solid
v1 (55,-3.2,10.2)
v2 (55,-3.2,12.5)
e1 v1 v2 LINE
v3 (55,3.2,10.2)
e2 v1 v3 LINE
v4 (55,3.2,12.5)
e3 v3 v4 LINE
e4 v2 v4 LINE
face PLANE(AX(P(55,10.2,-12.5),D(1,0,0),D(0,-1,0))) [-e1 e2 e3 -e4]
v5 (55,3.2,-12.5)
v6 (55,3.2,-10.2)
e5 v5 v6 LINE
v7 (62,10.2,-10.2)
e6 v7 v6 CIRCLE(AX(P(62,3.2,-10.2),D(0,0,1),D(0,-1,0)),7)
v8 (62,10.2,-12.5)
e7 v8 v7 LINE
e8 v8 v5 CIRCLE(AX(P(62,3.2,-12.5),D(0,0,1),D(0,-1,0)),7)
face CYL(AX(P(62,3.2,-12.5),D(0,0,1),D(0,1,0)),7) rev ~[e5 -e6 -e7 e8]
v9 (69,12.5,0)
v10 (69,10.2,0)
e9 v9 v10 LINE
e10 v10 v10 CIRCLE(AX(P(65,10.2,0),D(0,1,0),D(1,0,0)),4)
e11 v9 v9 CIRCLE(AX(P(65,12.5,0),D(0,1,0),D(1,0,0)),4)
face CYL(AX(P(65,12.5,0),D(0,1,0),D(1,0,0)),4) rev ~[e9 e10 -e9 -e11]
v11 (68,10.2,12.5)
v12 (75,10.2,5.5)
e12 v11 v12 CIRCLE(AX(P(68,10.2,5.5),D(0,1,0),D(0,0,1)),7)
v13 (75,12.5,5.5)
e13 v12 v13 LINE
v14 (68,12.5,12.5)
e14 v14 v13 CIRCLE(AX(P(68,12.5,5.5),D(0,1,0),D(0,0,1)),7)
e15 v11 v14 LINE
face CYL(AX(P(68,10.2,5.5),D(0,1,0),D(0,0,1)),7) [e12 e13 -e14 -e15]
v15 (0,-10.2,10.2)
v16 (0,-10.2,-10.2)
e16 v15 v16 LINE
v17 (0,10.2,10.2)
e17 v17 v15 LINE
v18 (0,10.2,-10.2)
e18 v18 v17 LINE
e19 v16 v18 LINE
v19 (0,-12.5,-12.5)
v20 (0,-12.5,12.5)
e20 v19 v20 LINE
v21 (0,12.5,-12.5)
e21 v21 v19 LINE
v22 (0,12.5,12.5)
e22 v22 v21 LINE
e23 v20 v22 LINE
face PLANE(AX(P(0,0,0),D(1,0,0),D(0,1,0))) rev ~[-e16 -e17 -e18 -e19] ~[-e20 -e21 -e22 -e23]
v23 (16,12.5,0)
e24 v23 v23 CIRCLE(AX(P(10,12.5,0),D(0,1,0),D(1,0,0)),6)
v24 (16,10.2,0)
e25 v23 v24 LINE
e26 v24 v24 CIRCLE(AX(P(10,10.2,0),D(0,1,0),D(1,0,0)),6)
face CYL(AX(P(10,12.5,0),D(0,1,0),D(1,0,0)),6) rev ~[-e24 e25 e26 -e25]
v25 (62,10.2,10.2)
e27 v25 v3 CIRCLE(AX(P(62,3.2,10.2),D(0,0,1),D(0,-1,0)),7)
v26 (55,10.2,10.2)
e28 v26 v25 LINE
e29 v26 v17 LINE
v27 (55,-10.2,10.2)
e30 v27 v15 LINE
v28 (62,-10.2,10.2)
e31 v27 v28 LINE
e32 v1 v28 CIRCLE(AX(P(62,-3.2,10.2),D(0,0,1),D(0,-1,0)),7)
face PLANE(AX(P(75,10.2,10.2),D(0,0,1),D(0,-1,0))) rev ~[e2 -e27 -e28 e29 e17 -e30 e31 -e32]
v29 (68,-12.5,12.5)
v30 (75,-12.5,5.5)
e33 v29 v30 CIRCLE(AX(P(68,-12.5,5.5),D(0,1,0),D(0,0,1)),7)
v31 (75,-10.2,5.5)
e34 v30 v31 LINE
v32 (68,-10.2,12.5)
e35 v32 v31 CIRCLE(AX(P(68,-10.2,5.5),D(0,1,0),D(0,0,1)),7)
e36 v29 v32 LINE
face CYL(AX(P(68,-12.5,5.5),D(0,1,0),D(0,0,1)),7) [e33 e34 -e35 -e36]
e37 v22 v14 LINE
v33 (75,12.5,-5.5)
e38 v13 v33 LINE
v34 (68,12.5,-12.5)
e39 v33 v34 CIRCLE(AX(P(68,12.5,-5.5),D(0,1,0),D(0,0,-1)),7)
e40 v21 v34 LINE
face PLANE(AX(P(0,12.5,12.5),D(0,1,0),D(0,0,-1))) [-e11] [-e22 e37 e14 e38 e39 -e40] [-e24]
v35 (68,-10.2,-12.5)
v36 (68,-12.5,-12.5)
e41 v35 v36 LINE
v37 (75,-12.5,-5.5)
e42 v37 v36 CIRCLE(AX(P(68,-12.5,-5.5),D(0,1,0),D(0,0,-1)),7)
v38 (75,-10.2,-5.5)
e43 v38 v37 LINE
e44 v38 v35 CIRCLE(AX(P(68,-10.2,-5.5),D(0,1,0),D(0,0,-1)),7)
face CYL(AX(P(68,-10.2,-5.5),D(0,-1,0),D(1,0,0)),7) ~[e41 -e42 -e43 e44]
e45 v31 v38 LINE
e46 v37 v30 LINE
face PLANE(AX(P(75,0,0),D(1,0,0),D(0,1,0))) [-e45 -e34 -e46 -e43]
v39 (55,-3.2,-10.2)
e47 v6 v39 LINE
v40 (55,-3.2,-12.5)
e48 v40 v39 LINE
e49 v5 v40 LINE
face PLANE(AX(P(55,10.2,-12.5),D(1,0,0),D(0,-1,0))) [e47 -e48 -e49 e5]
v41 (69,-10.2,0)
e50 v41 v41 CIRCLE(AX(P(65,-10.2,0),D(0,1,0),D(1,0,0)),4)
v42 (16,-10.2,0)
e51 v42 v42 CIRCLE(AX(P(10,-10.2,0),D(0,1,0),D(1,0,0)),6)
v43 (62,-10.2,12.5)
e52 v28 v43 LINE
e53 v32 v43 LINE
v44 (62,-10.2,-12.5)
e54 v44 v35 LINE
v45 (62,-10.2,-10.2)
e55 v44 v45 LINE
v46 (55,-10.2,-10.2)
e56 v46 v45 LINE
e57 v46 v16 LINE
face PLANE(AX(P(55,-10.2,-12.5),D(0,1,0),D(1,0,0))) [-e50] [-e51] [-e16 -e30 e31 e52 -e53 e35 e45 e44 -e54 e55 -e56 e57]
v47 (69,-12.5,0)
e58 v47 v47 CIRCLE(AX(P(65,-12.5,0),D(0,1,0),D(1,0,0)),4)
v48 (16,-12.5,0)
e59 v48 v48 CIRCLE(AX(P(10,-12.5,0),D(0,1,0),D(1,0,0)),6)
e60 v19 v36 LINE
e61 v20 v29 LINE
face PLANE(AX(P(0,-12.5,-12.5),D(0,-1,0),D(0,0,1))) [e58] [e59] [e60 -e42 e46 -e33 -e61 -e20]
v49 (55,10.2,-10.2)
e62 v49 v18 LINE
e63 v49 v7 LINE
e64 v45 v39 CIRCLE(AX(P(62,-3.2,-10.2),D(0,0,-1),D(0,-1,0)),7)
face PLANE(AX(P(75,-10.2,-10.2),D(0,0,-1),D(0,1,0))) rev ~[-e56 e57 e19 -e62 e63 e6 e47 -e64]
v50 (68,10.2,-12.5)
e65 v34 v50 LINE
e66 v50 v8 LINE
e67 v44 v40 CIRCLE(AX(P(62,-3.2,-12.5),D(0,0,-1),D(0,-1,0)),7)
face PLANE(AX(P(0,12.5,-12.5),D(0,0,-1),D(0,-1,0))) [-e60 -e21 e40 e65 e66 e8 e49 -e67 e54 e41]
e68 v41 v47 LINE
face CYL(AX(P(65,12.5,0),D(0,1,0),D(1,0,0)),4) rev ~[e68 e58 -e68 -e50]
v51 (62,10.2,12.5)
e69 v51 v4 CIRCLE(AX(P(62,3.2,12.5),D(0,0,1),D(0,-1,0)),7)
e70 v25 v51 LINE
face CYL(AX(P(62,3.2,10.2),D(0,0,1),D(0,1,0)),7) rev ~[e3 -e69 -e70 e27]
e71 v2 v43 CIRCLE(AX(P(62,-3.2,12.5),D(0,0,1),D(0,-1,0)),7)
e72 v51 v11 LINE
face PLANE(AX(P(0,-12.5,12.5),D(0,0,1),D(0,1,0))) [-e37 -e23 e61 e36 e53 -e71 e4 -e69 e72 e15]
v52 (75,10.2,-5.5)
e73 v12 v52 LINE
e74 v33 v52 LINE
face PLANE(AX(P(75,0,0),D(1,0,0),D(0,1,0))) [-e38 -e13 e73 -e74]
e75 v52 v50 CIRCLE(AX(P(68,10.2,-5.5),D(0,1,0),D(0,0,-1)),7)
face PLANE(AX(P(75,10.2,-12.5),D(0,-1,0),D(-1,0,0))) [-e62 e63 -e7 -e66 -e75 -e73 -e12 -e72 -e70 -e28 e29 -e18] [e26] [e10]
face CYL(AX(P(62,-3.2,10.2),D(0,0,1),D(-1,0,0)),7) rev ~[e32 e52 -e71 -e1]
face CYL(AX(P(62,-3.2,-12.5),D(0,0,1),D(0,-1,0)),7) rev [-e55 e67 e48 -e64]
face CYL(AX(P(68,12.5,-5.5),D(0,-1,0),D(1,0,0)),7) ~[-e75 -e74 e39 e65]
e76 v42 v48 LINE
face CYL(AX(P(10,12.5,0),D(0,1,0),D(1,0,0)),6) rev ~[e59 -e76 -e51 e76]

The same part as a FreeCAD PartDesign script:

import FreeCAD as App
import Part
import Sketcher

V = App.Vector
Q = App.Units.Quantity


def edges_at(feature, points):
    """Names of the edges that pass closest to the given points."""
    edges = feature.Shape.Edges
    near = lambda p: min(range(len(edges)), key=lambda i: edges[i].distToShape(Part.Vertex(*p))[0])
    return sorted({f"Edge{near(p) + 1}" for p in points})


def add_polygon(sketch, points):
    """Adds a closed chain of lines whose ends are joined by coincident constraints."""
    first, n = sketch.GeometryCount, len(points)
    for a, b in zip(points, points[1:] + points[:1]):
        sketch.addGeometry(Part.LineSegment(App.Vector(*a, 0), App.Vector(*b, 0)), False)
    for i in range(n):
        sketch.addConstraint(Sketcher.Constraint("Coincident", first + i, 2, first + (i + 1) % n, 1))

doc = App.newDocument("Part")
body = doc.addObject("PartDesign::Body", "Body")

# Sketch on YZ plane
sketch1 = body.newObject("Sketcher::SketchObject", "Sketch")
sketch1.AttachmentSupport = (doc.getObject("YZ_Plane"), [""])
sketch1.MapMode = "FlatFace"
add_polygon(sketch1, [(12, 12), (-12, 12), (-12, -12), (12, -12)])  # lines 0-3
sketch1.addConstraint([
    Sketcher.Constraint("Horizontal", 0),
    Sketcher.Constraint("Vertical", 1),
    Sketcher.Constraint("Horizontal", 2),
    Sketcher.Constraint("Vertical", 3),
    Sketcher.Constraint("Symmetric", 0, 2, 2, 2, -1, 1),
    Sketcher.Constraint("Equal", 2, 1),
    Sketcher.Constraint("DistanceX", 0, 2, 0, 1, Q("25 mm")),
])
pad1 = body.newObject("PartDesign::Pad", "Pad")
pad1.Profile = sketch1
pad1.Length = 75

# Sketch on XZ plane
sketch2 = body.newObject("Sketcher::SketchObject", "Sketch001")
sketch2.AttachmentSupport = (doc.getObject("XZ_Plane"), [""])
sketch2.MapMode = "FlatFace"
sketch2.AttachmentOffset = App.Placement(V(0, 0, -12.5), App.Rotation())
sketch2.addGeometry(Part.Circle(V(10, 0, 0), V(0, 0, 1), 6), False)
sketch2.addConstraint([
    Sketcher.Constraint("PointOnObject", 0, 3, -1),
    Sketcher.Constraint("Diameter", 0, Q("12 mm")),
    Sketcher.Constraint("DistanceX", -1, 1, 0, 3, Q("10 mm")),
])
pocket1 = body.newObject("PartDesign::Pocket", "Pocket")
pocket1.Profile = sketch2
pocket1.Type = "ThroughAll"
pocket1.Reversed = True

# Sketch on XZ plane
sketch3 = body.newObject("Sketcher::SketchObject", "Sketch002")
sketch3.AttachmentSupport = (doc.getObject("XZ_Plane"), [""])
sketch3.MapMode = "FlatFace"
sketch3.AttachmentOffset = App.Placement(V(0, 0, -12.5), App.Rotation())
sketch3.addGeometry(Part.Circle(V(65, 0, 0), V(0, 0, 1), 4), False)
sketch3.addConstraint([
    Sketcher.Constraint("PointOnObject", 0, 3, -1),
    Sketcher.Constraint("Diameter", 0, Q("8 mm")),
    Sketcher.Constraint("DistanceX", -1, 1, 0, 3, Q("65 mm")),
])
pocket2 = body.newObject("PartDesign::Pocket", "Pocket001")
pocket2.Profile = sketch3
pocket2.Type = "ThroughAll"
pocket2.Reversed = True

# Sketch on YZ plane
sketch4 = body.newObject("Sketcher::SketchObject", "Sketch003")
sketch4.AttachmentSupport = (doc.getObject("YZ_Plane"), [""])
sketch4.MapMode = "FlatFace"
sketch4.AttachmentOffset = App.Placement(V(0, 0, 75), App.Rotation())
add_polygon(sketch4, [(10, 10), (-10, 10), (-10, -10), (10, -10)])  # lines 0-3
sketch4.addConstraint([
    Sketcher.Constraint("Horizontal", 0),
    Sketcher.Constraint("Vertical", 1),
    Sketcher.Constraint("Horizontal", 2),
    Sketcher.Constraint("Vertical", 3),
    Sketcher.Constraint("Symmetric", 0, 2, 2, 2, -1, 1),
    Sketcher.Constraint("Equal", 2, 1),
    Sketcher.Constraint("DistanceX", 0, 2, 0, 1, Q("20.4 mm")),
])
pocket3 = body.newObject("PartDesign::Pocket", "Pocket002")
pocket3.Profile = sketch4
pocket3.Type = "ThroughAll"

# Sketch on XY plane
sketch5 = body.newObject("Sketcher::SketchObject", "Sketch004")
sketch5.AttachmentSupport = (doc.getObject("XY_Plane"), [""])
sketch5.MapMode = "FlatFace"
sketch5.AttachmentOffset = App.Placement(V(0, 0, -12.5), App.Rotation())
add_polygon(sketch5, [(75, 10), (75, -10), (55, -10), (55, 10)])  # lines 0-3
sketch5.addConstraint([
    Sketcher.Constraint("Vertical", 0),
    Sketcher.Constraint("Horizontal", 1),
    Sketcher.Constraint("Vertical", 2),
    Sketcher.Constraint("Horizontal", 3),
    Sketcher.Constraint("DistanceX", 1, 2, 1, 1, Q("20 mm")),
    Sketcher.Constraint("DistanceY", 0, 2, 0, 1, Q("20.4 mm")),
    Sketcher.Constraint("DistanceX", -1, 1, 0, 2, Q("75 mm")),
    Sketcher.Constraint("DistanceY", 0, 2, -1, 1, Q("10.2 mm")),
])
pocket4 = body.newObject("PartDesign::Pocket", "Pocket003")
pocket4.Profile = sketch5
pocket4.Type = "ThroughAll"
pocket4.Reversed = True
doc.recompute()

fillet = body.newObject("PartDesign::Fillet", "Fillet")
fillet.Base = (pocket4, edges_at(pocket4, [
    (55, 10.2, 11.35),
    (55, 10.2, -11.35),
    (75, 11.35, -12.5),
    (75, 11.35, 12.5),
    (75, -11.35, -12.5),
    (75, -11.35, 12.5),
    (55, -10.2, 11.35),
    (55, -10.2, -11.35),
]))
fillet.Radius = 7

doc.recompute()
